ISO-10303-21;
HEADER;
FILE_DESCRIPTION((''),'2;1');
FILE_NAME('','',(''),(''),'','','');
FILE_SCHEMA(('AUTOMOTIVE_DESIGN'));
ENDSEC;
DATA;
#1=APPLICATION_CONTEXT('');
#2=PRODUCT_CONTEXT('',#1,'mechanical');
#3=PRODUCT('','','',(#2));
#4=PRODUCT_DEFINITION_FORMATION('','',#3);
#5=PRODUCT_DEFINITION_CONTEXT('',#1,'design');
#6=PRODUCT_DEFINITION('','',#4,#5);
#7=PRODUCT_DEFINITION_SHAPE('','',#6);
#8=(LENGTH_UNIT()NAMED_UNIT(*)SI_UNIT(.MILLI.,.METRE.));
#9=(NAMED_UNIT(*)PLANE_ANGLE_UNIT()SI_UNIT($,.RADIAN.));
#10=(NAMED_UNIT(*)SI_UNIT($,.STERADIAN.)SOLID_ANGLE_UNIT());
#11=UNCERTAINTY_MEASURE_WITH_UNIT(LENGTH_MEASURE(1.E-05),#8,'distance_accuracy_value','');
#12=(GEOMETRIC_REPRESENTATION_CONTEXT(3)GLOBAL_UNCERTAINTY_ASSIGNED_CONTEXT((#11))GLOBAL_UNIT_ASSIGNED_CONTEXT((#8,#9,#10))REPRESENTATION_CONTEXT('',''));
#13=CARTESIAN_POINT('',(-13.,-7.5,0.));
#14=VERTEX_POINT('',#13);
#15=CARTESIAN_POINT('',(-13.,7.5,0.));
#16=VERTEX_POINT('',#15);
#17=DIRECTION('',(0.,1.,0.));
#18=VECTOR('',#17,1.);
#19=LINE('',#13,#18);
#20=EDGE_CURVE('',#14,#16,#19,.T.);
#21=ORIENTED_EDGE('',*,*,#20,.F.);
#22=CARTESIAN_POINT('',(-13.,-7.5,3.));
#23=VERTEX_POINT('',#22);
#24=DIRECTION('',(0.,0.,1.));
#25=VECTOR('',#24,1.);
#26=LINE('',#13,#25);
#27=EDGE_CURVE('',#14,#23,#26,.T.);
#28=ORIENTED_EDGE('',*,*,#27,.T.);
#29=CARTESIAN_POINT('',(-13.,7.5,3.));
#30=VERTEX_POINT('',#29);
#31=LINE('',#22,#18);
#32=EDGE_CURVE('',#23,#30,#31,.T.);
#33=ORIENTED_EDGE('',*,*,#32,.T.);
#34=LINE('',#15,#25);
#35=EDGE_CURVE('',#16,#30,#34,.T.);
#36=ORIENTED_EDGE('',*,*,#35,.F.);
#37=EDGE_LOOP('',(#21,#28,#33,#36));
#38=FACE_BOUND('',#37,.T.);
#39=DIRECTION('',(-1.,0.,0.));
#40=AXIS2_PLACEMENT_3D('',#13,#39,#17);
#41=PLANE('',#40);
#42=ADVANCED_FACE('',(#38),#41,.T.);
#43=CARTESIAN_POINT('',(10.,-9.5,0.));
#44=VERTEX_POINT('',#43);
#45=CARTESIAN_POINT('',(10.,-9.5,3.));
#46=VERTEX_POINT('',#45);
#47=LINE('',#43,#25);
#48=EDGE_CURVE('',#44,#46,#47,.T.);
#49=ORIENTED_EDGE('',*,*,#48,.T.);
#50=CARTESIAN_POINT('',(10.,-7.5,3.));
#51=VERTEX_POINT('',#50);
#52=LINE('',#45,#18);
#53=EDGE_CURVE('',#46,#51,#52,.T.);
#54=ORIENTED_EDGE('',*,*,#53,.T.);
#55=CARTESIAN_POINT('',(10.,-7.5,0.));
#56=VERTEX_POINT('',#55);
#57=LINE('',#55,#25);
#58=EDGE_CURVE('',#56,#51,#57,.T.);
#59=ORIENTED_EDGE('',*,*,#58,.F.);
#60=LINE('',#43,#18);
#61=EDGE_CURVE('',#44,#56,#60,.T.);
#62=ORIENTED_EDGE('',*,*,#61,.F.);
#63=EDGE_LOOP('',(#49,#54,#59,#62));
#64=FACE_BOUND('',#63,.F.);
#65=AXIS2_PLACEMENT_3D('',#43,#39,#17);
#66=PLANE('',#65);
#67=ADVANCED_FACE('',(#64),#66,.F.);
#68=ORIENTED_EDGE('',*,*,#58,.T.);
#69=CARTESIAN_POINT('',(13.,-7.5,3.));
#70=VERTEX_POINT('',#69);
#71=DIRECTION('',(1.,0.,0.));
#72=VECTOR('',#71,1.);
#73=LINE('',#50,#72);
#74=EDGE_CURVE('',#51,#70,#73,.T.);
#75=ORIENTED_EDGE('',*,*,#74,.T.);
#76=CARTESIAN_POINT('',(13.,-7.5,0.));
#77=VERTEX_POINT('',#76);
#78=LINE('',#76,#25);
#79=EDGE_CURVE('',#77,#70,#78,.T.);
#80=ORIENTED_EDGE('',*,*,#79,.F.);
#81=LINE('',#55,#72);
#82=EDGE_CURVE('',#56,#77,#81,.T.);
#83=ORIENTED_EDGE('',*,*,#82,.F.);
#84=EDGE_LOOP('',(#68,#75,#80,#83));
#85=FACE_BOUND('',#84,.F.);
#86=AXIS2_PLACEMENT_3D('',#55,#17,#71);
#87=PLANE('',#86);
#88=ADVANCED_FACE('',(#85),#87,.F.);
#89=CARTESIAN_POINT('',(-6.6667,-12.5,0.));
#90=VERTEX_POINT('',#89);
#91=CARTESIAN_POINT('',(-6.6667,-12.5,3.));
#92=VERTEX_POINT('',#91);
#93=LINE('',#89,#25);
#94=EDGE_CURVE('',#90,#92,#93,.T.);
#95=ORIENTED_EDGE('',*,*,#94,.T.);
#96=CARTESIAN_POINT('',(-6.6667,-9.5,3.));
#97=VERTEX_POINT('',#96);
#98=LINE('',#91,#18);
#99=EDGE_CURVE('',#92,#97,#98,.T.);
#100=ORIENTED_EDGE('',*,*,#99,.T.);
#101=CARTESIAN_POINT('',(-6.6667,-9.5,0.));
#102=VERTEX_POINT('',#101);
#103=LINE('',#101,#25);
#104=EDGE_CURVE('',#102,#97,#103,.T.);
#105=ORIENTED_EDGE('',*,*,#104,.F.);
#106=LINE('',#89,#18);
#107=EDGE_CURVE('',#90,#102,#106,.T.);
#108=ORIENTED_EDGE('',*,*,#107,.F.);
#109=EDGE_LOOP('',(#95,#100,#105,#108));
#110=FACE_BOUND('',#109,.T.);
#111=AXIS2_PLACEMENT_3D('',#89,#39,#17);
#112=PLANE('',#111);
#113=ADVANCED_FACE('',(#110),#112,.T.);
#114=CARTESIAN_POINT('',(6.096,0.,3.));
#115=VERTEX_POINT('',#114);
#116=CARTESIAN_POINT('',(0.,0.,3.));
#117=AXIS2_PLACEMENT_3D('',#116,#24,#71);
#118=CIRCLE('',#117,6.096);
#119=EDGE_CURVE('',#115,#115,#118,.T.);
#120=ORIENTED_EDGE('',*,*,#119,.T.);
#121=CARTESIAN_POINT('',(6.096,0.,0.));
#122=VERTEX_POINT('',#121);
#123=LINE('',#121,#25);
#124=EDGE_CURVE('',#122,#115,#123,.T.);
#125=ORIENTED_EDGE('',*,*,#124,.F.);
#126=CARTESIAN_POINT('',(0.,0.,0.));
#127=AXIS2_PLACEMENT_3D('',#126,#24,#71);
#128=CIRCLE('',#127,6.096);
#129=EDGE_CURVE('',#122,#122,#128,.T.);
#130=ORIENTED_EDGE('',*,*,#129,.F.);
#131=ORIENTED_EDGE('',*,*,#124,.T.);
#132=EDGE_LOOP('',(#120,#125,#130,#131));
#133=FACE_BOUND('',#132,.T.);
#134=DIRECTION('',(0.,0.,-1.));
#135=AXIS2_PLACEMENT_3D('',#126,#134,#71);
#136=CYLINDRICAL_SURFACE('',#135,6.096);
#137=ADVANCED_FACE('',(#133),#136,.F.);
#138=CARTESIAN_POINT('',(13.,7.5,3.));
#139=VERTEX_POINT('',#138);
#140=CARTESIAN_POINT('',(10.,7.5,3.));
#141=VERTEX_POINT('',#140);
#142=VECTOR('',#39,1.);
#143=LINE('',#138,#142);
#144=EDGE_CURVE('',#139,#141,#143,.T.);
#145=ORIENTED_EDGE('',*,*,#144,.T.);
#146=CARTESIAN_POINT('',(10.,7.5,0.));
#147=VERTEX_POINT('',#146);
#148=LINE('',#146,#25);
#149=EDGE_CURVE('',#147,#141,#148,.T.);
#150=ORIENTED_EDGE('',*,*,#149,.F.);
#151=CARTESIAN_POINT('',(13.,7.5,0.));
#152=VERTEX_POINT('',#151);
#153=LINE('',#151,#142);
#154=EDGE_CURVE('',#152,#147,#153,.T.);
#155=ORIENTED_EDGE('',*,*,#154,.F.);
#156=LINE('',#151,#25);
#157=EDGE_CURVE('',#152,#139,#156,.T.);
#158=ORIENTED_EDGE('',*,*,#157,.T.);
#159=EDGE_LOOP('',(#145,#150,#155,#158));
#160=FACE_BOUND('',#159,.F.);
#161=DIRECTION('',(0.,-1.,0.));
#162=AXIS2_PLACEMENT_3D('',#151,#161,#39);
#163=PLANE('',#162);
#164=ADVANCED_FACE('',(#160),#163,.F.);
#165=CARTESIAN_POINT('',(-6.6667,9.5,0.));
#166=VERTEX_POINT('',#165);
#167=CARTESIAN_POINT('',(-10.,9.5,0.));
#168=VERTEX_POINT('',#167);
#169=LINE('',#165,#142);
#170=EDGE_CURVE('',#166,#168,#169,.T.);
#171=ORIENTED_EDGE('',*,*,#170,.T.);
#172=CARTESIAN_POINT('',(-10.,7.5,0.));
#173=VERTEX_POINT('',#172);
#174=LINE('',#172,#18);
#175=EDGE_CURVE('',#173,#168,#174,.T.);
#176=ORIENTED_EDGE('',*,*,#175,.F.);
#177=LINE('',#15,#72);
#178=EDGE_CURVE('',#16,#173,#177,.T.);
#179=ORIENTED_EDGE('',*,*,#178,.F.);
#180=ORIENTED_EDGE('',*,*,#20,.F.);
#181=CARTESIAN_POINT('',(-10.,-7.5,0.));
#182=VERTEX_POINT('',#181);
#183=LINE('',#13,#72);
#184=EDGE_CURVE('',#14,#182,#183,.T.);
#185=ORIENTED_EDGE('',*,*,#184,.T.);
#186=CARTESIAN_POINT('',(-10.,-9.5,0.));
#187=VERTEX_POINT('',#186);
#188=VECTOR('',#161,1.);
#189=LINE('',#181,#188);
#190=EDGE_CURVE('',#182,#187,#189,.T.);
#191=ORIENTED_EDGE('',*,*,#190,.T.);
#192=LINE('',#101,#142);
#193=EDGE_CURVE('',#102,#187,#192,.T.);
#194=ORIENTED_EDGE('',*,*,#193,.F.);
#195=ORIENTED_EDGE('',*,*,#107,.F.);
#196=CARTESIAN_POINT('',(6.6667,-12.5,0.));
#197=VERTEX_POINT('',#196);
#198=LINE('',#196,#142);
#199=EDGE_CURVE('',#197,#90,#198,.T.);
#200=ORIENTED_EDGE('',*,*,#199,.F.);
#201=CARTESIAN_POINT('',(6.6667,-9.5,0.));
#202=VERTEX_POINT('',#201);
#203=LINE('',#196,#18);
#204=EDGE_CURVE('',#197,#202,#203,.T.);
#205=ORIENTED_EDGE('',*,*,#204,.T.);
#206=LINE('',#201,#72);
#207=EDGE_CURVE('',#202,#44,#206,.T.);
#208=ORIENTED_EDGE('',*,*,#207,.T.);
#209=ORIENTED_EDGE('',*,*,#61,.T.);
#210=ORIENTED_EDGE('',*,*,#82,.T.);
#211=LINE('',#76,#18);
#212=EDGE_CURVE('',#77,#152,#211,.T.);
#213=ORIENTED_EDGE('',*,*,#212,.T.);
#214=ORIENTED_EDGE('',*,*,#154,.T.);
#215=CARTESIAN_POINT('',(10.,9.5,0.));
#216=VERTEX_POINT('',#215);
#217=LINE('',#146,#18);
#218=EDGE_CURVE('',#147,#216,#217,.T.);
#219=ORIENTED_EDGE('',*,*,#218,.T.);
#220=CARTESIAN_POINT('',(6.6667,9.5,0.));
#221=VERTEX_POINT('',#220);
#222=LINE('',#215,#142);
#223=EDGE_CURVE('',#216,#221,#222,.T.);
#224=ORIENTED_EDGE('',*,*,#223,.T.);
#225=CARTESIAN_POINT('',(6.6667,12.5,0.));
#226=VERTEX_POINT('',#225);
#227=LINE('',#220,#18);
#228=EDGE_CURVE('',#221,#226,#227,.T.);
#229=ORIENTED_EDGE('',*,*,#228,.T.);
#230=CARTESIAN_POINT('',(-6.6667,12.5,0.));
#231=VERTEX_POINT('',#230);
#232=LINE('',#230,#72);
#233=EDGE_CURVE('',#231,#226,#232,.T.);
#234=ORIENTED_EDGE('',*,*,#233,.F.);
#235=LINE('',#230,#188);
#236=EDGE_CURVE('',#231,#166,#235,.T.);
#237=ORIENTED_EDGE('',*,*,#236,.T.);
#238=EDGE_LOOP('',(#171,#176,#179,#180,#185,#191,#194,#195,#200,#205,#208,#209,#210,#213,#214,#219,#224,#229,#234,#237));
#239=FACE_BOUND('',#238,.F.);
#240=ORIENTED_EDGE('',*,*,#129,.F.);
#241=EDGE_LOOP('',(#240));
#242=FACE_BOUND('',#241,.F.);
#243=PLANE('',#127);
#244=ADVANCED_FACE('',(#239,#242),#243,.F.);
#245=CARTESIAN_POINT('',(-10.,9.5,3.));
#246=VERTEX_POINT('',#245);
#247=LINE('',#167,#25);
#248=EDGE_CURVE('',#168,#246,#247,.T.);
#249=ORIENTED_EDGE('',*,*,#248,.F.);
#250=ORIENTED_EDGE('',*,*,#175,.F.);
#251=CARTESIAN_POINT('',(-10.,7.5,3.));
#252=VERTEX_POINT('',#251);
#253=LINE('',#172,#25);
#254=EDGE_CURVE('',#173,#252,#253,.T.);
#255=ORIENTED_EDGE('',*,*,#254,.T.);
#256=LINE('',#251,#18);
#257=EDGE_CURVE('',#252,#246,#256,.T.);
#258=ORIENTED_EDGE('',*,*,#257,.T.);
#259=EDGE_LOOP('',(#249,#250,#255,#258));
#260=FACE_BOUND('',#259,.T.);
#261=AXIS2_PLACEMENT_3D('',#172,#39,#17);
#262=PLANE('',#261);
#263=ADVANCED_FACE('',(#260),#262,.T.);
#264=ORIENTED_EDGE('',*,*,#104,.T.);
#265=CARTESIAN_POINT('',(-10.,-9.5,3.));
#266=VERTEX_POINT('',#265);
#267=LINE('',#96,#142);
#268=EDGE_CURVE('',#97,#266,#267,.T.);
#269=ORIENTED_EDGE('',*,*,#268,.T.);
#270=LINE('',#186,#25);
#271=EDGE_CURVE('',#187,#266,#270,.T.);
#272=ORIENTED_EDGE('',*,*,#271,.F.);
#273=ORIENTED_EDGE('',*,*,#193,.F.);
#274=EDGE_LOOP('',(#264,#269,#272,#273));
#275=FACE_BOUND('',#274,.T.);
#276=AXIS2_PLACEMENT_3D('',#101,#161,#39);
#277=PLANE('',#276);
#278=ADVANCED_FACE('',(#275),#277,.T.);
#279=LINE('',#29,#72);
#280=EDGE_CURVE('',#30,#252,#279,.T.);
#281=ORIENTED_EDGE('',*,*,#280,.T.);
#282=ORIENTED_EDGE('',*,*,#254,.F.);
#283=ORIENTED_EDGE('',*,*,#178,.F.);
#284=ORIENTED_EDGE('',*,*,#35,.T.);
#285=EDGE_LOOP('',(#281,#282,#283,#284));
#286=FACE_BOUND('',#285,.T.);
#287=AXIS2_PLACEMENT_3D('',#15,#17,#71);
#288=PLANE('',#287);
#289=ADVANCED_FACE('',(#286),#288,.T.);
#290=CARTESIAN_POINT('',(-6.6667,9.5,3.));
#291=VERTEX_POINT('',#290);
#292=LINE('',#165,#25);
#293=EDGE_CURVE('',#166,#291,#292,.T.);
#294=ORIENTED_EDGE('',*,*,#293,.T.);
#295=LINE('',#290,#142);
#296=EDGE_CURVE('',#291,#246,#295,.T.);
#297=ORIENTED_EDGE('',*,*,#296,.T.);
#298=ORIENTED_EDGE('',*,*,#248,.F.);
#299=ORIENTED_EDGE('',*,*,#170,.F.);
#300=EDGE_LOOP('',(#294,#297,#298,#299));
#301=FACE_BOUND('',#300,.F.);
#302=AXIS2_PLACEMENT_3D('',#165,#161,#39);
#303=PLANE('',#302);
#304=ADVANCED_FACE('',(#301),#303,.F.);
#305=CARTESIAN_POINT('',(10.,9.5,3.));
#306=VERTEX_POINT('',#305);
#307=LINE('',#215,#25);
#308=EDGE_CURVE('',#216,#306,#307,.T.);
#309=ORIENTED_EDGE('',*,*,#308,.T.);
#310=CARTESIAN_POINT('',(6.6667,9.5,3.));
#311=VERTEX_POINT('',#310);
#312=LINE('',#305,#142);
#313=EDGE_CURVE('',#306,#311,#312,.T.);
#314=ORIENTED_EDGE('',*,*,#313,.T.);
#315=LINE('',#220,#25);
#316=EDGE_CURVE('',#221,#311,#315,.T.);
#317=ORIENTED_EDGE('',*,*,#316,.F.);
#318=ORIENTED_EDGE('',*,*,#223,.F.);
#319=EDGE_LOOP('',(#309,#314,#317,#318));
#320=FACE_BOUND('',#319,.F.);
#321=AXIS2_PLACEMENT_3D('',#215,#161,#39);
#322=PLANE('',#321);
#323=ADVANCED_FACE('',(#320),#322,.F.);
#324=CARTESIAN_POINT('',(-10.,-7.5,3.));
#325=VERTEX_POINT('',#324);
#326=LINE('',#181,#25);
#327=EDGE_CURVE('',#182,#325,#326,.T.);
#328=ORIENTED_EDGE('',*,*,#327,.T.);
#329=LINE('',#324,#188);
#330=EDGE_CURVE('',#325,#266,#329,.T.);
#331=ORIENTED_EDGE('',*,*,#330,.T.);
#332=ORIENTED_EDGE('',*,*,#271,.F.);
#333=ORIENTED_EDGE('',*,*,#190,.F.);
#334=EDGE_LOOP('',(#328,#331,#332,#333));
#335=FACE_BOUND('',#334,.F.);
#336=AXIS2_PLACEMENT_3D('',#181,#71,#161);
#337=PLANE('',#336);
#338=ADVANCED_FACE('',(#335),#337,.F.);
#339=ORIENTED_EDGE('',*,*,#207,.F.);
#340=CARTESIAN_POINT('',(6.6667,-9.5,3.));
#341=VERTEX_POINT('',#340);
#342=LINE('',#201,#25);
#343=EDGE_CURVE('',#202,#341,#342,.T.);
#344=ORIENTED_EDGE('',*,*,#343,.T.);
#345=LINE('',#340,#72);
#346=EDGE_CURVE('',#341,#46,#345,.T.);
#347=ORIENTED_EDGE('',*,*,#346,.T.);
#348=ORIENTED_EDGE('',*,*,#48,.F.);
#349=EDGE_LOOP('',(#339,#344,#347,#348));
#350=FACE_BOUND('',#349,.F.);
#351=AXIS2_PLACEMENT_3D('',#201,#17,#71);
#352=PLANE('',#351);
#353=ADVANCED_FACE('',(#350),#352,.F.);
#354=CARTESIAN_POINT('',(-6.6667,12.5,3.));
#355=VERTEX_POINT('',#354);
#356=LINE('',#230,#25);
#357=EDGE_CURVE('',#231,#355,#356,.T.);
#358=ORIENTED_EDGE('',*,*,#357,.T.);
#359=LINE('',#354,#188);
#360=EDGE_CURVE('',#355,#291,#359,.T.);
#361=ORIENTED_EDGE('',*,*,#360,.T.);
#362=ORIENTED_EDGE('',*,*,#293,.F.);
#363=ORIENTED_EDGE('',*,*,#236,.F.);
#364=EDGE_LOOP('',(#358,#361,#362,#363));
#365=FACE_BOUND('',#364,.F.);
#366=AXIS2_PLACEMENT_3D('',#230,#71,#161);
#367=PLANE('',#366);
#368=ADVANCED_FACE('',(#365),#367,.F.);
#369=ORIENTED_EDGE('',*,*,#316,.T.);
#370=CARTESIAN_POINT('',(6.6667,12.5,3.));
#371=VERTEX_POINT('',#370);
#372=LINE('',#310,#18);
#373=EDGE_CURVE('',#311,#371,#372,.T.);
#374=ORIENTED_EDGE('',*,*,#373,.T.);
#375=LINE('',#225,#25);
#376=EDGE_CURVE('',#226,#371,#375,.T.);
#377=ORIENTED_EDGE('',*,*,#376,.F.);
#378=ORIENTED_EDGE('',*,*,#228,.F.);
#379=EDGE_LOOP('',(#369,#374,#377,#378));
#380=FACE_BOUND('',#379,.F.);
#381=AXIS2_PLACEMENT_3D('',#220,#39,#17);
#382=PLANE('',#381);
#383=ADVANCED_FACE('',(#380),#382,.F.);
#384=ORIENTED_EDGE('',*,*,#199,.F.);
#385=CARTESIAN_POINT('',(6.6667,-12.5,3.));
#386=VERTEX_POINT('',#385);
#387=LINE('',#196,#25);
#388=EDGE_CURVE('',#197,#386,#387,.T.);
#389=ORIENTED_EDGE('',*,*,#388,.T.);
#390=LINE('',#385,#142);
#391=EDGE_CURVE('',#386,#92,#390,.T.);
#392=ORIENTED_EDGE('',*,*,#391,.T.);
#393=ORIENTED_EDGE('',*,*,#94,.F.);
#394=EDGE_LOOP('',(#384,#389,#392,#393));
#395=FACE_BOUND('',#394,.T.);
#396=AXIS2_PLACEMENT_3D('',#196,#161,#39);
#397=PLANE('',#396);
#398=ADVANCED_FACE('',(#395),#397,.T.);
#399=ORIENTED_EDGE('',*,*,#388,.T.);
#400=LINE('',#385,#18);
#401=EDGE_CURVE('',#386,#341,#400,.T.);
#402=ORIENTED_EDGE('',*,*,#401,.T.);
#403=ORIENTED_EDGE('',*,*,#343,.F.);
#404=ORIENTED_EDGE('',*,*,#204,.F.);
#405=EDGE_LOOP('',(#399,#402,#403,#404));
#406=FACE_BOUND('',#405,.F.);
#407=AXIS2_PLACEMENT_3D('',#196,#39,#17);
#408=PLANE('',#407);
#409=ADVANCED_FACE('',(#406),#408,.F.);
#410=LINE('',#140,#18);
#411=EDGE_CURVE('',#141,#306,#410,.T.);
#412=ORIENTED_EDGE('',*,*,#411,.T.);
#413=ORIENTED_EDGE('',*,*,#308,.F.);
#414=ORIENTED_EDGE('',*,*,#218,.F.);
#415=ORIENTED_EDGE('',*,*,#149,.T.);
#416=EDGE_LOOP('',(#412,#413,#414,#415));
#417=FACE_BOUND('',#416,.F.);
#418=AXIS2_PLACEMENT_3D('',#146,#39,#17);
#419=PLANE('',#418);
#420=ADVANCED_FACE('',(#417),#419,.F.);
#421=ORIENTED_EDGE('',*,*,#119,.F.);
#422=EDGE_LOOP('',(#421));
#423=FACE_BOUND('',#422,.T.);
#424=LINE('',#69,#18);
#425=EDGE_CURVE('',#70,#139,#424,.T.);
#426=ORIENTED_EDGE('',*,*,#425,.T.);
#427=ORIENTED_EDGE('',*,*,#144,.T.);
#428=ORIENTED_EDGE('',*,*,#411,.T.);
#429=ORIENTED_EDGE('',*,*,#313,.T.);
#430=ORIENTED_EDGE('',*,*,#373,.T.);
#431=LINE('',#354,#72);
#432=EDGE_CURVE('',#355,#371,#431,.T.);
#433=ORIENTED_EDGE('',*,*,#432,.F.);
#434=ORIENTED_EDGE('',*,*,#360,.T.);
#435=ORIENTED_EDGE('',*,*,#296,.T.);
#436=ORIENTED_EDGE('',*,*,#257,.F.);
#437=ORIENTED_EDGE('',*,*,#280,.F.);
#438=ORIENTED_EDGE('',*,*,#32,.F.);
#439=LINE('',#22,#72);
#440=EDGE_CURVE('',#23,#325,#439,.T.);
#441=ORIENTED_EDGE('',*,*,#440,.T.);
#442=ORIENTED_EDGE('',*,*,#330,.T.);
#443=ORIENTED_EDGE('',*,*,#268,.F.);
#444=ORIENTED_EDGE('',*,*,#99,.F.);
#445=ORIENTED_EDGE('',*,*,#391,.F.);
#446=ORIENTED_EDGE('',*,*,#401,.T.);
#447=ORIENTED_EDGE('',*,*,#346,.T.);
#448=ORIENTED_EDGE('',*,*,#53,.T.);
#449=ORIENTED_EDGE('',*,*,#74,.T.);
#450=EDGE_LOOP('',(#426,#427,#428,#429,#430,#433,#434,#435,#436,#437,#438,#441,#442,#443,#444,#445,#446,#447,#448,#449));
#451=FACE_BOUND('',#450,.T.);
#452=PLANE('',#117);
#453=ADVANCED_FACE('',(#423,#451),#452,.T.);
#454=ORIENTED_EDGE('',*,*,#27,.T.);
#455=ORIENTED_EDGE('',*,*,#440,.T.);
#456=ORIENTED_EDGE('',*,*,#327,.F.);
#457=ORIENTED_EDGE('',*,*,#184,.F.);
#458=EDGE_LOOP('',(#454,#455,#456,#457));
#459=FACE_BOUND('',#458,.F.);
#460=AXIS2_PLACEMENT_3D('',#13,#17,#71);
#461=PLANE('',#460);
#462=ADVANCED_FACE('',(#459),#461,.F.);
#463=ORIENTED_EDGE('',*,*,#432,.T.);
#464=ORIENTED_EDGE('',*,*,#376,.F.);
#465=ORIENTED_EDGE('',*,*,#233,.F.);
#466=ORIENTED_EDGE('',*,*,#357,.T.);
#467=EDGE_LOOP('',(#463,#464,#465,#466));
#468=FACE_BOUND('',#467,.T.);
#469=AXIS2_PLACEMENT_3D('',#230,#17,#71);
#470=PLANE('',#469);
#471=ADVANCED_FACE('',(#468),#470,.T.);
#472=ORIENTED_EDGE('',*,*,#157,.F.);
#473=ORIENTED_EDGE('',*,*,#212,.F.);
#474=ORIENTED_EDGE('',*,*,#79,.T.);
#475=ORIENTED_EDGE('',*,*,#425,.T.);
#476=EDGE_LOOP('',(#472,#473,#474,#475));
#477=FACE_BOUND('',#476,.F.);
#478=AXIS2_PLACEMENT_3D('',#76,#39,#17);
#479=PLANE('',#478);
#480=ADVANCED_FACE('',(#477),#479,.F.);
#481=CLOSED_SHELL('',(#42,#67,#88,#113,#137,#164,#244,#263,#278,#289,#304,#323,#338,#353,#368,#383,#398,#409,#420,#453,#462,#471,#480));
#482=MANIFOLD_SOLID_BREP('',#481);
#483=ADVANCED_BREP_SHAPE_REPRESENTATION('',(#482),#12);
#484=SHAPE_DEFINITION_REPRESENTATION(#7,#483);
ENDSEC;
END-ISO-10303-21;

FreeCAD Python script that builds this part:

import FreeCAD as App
import Part
import Sketcher

V = App.Vector
Q = App.Units.Quantity

doc = App.newDocument("Part")
body = doc.addObject("PartDesign::Body", "Body")

sketch1 = body.newObject("Sketcher::SketchObject", "Sketch")
sketch1.AttachmentSupport = (doc.getObject("XY_Plane"), [""])
sketch1.MapMode = "FlatFace"
sketch1.addGeometry([
    Part.LineSegment(V(13, -7.5, 0), V(13, 7.5, 0)),
    Part.LineSegment(V(13, 7.5, 0), V(10, 7.5, 0)),
    Part.LineSegment(V(10, 7.5, 0), V(10, 9.5, 0)),
    Part.LineSegment(V(10, 9.5, 0), V(6.7, 9.5, 0)),
    Part.LineSegment(V(6.7, 9.5, 0), V(6.7, 12.5, 0)),
    Part.LineSegment(V(6.7, 12.5, 0), V(-6.7, 12.5, 0)),
    Part.LineSegment(V(-6.7, 12.5, 0), V(-6.7, 9.5, 0)),
    Part.LineSegment(V(-6.7, 9.5, 0), V(-10, 9.5, 0)),
    Part.LineSegment(V(-10, 9.5, 0), V(-10, 7.5, 0)),
    Part.LineSegment(V(-10, 7.5, 0), V(-13, 7.5, 0)),
    Part.LineSegment(V(-13, 7.5, 0), V(-13, -7.5, 0)),
    Part.LineSegment(V(-13, -7.5, 0), V(-10, -7.5, 0)),
    Part.LineSegment(V(-10, -7.5, 0), V(-10, -9.5, 0)),
    Part.LineSegment(V(-10, -9.5, 0), V(-6.7, -9.5, 0)),
    Part.LineSegment(V(-6.7, -9.5, 0), V(-6.7, -12.5, 0)),
    Part.LineSegment(V(-6.7, -12.5, 0), V(6.7, -12.5, 0)),
    Part.LineSegment(V(6.7, -12.5, 0), V(6.7, -9.5, 0)),
    Part.LineSegment(V(6.7, -9.5, 0), V(10, -9.5, 0)),
    Part.LineSegment(V(10, -9.5, 0), V(10, -7.5, 0)),
    Part.LineSegment(V(10, -7.5, 0), V(13, -7.5, 0)),
    Part.Circle(V(0, 0, 0), V(0, 0, 1), 6.1),
], False)
sketch1.addConstraint([
    Sketcher.Constraint("Coincident", 0, 2, 1, 1),
    Sketcher.Constraint("Coincident", 1, 2, 2, 1),
    Sketcher.Constraint("Coincident", 2, 2, 3, 1),
    Sketcher.Constraint("Coincident", 3, 2, 4, 1),
    Sketcher.Constraint("Coincident", 4, 2, 5, 1),
    Sketcher.Constraint("Coincident", 5, 2, 6, 1),
    Sketcher.Constraint("Coincident", 6, 2, 7, 1),
    Sketcher.Constraint("Coincident", 7, 2, 8, 1),
    Sketcher.Constraint("Coincident", 8, 2, 9, 1),
    Sketcher.Constraint("Coincident", 9, 2, 10, 1),
    Sketcher.Constraint("Coincident", 10, 2, 11, 1),
    Sketcher.Constraint("Coincident", 11, 2, 12, 1),
    Sketcher.Constraint("Coincident", 12, 2, 13, 1),
    Sketcher.Constraint("Coincident", 13, 2, 14, 1),
    Sketcher.Constraint("Coincident", 14, 2, 15, 1),
    Sketcher.Constraint("Coincident", 15, 2, 16, 1),
    Sketcher.Constraint("Coincident", 16, 2, 17, 1),
    Sketcher.Constraint("Coincident", 17, 2, 18, 1),
    Sketcher.Constraint("Coincident", 18, 2, 19, 1),
    Sketcher.Constraint("Coincident", 19, 2, 0, 1),
    Sketcher.Constraint("Vertical", 0),
    Sketcher.Constraint("Horizontal", 1),
    Sketcher.Constraint("Vertical", 2),
    Sketcher.Constraint("Horizontal", 3),
    Sketcher.Constraint("Vertical", 4),
    Sketcher.Constraint("Horizontal", 5),
    Sketcher.Constraint("Vertical", 6),
    Sketcher.Constraint("Horizontal", 7),
    Sketcher.Constraint("Vertical", 8),
    Sketcher.Constraint("Horizontal", 9),
    Sketcher.Constraint("Vertical", 10),
    Sketcher.Constraint("Horizontal", 11),
    Sketcher.Constraint("Vertical", 12),
    Sketcher.Constraint("Horizontal", 13),
    Sketcher.Constraint("Vertical", 14),
    Sketcher.Constraint("Horizontal", 15),
    Sketcher.Constraint("Vertical", 16),
    Sketcher.Constraint("Horizontal", 17),
    Sketcher.Constraint("Vertical", 18),
    Sketcher.Constraint("Horizontal", 19),
    Sketcher.Constraint("Coincident", 20, 3, -1, 1),
    Sketcher.Constraint("Symmetric", 0, 2, 10, 2, -1, 1),
    Sketcher.Constraint("Symmetric", 2, 2, 12, 2, -1, 1),
    Sketcher.Constraint("Symmetric", 4, 2, 14, 2, -1, 1),
    Sketcher.Constraint("Symmetric", 6, 2, 16, 2, -1, 1),
    Sketcher.Constraint("Symmetric", 8, 2, 18, 2, -1, 1),
    Sketcher.Constraint("Symmetric", 3, 2, 6, 2, -2),
    Sketcher.Constraint("Symmetric", 1, 2, 8, 2, -2),
    Sketcher.Constraint("Equal", 19, 4),
    Sketcher.Constraint("DistanceX", 1, 2, 1, 1, Q("3 mm")),
    Sketcher.Constraint("DistanceY", 0, 1, 0, 2, Q("15 mm")),
    Sketcher.Constraint("Diameter", 20, Q("12.192 mm")),
    Sketcher.Constraint("DistanceY", 2, 1, 2, 2, Q("2 mm")),
    Sketcher.Constraint("DistanceX", 5, 2, 5, 1, Q("13.3334 mm")),
    Sketcher.Constraint("DistanceX", -1, 1, 0, 2, Q("13 mm")),
])
pad1 = body.newObject("PartDesign::Pad", "Pad")
pad1.Profile = sketch1
pad1.Length = 3

doc.recompute()
